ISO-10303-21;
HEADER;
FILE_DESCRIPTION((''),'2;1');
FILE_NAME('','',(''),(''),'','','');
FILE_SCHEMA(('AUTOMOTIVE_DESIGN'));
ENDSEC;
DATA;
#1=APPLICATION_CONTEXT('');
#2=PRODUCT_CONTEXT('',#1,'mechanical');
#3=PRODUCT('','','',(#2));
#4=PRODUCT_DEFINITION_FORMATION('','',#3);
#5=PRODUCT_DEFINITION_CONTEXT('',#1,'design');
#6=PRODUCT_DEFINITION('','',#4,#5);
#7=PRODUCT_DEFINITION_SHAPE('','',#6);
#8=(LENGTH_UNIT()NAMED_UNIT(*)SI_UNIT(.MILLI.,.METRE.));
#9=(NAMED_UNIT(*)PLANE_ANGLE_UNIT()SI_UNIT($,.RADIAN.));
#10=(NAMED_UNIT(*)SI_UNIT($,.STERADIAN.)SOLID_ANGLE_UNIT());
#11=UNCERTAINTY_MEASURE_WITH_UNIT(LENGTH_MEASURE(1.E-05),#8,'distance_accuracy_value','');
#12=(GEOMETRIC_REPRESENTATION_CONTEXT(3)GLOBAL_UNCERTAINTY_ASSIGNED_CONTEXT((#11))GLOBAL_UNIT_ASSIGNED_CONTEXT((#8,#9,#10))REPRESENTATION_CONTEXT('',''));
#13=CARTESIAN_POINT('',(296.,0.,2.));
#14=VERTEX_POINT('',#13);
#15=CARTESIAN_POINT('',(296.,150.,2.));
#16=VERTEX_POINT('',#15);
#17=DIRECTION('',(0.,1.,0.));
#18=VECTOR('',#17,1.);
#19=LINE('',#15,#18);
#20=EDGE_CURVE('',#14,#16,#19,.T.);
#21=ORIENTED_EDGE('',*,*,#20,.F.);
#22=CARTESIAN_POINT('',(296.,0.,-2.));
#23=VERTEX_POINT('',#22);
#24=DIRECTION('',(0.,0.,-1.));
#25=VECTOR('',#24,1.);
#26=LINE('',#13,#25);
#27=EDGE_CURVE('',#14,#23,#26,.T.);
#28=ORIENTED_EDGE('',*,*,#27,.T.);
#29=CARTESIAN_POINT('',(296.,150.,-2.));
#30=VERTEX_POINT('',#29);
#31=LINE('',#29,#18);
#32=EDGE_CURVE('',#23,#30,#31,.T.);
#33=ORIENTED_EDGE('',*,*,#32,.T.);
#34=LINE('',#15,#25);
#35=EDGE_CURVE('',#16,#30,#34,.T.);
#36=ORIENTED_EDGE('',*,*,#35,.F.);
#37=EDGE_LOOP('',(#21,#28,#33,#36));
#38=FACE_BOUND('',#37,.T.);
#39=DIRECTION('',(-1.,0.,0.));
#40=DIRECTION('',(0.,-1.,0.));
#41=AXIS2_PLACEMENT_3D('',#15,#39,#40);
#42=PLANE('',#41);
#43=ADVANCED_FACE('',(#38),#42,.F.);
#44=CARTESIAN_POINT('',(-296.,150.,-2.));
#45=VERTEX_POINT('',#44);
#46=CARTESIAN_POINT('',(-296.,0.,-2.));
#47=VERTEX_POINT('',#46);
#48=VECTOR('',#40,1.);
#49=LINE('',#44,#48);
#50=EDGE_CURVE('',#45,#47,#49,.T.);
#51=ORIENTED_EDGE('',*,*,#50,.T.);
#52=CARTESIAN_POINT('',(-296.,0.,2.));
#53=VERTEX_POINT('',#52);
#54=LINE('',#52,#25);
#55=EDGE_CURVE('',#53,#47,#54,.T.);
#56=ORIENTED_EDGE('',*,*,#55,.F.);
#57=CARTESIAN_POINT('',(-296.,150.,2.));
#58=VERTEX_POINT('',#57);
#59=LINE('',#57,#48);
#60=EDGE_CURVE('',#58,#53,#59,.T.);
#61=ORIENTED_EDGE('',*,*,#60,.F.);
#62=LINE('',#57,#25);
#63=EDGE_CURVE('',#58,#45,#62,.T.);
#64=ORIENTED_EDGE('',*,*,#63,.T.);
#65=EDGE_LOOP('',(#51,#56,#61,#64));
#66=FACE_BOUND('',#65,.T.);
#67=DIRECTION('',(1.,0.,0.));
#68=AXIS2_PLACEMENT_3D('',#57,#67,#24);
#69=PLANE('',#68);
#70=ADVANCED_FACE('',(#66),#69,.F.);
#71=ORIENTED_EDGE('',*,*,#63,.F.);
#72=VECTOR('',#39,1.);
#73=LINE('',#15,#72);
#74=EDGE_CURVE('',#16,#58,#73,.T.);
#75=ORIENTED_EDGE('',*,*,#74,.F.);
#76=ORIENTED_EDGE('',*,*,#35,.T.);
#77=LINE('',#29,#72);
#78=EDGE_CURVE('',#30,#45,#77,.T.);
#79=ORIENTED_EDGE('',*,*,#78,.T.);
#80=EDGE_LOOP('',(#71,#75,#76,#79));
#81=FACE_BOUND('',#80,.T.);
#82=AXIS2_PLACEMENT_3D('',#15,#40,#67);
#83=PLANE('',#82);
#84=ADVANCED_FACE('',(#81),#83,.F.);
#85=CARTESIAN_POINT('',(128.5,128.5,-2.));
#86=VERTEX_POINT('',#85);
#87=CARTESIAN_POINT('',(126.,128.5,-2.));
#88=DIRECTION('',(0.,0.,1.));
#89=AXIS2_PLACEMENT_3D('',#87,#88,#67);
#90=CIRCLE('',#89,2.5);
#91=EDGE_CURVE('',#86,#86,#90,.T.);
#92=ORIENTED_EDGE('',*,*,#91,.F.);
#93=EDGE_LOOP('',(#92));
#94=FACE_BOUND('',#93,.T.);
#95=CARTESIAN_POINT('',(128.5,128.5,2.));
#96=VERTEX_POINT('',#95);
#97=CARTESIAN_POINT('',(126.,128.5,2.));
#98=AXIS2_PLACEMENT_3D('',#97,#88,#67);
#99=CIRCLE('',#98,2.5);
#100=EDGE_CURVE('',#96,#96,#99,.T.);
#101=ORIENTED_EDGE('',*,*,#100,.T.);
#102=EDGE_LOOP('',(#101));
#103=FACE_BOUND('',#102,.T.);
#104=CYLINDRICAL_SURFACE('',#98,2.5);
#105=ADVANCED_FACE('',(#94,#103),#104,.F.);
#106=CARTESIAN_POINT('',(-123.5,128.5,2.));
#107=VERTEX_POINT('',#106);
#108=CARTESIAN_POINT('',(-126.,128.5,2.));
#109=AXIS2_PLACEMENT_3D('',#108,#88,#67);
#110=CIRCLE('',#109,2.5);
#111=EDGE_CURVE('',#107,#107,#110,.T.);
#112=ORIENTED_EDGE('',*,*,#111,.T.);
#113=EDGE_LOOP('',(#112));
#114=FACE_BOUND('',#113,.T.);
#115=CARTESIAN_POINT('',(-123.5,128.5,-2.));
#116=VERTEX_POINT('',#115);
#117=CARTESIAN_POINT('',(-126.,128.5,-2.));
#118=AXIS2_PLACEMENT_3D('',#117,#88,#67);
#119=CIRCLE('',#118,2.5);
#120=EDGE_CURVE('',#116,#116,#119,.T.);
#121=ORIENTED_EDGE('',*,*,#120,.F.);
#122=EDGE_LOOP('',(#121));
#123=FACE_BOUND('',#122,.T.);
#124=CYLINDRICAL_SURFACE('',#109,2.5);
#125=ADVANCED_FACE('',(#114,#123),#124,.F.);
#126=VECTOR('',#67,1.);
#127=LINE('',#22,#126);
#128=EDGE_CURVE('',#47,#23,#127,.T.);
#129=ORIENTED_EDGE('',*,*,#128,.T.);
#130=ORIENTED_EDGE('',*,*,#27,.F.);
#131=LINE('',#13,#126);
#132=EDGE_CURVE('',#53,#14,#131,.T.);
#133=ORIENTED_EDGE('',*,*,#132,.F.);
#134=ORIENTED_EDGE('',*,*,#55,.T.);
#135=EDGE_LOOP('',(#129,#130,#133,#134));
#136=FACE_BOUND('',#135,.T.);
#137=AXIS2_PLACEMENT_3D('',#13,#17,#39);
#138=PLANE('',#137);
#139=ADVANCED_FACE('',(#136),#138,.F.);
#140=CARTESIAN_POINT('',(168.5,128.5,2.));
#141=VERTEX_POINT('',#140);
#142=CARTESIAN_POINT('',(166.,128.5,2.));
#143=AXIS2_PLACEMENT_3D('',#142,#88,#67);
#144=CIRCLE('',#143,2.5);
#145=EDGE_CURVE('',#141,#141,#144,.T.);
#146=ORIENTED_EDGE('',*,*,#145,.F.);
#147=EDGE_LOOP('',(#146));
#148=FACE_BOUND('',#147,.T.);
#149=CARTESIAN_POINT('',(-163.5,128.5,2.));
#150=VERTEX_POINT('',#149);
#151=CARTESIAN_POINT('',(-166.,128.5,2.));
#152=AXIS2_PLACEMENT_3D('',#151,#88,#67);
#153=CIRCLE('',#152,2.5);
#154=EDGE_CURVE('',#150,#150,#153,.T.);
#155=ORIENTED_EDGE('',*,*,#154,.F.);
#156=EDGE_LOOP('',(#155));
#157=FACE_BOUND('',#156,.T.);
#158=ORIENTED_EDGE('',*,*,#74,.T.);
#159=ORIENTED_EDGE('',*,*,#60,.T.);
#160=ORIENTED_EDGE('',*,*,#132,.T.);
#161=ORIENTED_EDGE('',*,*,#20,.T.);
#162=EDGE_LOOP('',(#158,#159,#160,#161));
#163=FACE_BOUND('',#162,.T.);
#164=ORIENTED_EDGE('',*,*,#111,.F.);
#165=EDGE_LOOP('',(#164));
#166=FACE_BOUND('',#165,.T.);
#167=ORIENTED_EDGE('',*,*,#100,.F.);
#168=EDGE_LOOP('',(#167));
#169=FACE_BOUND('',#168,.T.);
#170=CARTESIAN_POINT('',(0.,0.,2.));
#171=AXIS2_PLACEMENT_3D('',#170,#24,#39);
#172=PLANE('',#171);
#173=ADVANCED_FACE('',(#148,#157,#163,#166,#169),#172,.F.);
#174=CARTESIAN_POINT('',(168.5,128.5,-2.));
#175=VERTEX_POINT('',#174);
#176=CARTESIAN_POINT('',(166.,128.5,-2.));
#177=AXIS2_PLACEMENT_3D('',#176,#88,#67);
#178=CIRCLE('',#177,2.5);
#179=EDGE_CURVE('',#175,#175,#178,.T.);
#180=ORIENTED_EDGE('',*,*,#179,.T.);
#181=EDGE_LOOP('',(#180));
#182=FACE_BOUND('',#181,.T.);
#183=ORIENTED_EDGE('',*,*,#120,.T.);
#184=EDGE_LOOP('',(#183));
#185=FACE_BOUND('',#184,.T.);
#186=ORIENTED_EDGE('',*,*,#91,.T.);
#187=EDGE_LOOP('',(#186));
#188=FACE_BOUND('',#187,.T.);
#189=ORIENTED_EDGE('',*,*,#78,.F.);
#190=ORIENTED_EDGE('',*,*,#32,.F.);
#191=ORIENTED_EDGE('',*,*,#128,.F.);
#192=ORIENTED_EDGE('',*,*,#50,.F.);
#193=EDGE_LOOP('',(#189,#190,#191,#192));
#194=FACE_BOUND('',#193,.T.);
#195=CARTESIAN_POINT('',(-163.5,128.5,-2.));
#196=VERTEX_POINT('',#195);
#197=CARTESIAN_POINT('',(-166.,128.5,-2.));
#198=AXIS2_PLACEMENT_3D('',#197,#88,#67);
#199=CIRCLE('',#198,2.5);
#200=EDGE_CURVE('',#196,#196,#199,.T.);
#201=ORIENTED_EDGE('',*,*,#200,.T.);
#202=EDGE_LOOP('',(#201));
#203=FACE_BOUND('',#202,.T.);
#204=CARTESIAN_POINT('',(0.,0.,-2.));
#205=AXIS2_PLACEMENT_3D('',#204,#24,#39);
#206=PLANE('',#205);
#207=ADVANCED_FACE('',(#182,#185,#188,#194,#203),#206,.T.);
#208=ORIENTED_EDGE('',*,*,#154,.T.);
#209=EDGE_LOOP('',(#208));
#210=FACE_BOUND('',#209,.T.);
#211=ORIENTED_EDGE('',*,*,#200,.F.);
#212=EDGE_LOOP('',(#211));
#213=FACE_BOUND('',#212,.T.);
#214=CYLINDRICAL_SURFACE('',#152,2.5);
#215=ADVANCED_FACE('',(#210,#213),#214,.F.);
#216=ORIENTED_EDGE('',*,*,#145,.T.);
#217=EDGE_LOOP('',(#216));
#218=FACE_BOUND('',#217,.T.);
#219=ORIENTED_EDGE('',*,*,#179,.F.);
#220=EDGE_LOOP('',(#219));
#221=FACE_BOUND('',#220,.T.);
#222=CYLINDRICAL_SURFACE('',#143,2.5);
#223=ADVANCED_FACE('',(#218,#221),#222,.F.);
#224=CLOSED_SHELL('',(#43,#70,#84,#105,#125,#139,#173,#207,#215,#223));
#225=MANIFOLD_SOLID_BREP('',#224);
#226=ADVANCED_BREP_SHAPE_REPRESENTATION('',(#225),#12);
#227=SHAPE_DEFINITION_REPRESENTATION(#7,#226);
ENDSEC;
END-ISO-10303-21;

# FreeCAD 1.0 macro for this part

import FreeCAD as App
import Part
import Sketcher
from FreeCAD import Vector
Q = App.Units.Quantity


def add_polygon(sketch, points):
    """Adds a closed chain of lines whose ends are joined by coincident constraints."""
    first, n = sketch.GeometryCount, len(points)
    for a, b in zip(points, points[1:] + points[:1]):
        sketch.addGeometry(Part.LineSegment(App.Vector(*a, 0), App.Vector(*b, 0)), False)
    for i in range(n):
        sketch.addConstraint(Sketcher.Constraint("Coincident", first + i, 2, first + (i + 1) % n, 1))

doc = App.newDocument("Part")
body = doc.addObject("PartDesign::Body", "Body")

# Sketch on XY plane
sketch1 = body.newObject("Sketcher::SketchObject", "Sketch")
sketch1.AttachmentSupport = (doc.getObject("XY_Plane"), [""])
sketch1.MapMode = "FlatFace"
add_polygon(sketch1, [(-296, 150), (-296, 0), (296, 0), (296, 150)])  # lines 0-3
sketch1.addConstraint([
    Sketcher.Constraint("Vertical", 0),
    Sketcher.Constraint("Horizontal", 1),
    Sketcher.Constraint("Vertical", 2),
    Sketcher.Constraint("Horizontal", 3),
    Sketcher.Constraint("Symmetric", 0, 2, 1, 2, -1, 1),
    Sketcher.Constraint("DistanceX", 1, 1, 1, 2, Q("592 mm")),
    Sketcher.Constraint("DistanceY", 0, 2, 0, 1, Q("150 mm")),
])
pad1 = body.newObject("PartDesign::Pad", "Pad")
pad1.Profile = sketch1
pad1.Length = 4
pad1.Midplane = True

# Sketch on XY plane
sketch2 = body.newObject("Sketcher::SketchObject", "Sketch001")
sketch2.AttachmentSupport = (doc.getObject("XY_Plane"), [""])
sketch2.MapMode = "FlatFace"
sketch2.AttachmentOffset = App.Placement(Vector(0, 0, 2), App.Rotation())
sketch2.addGeometry([
    Part.Circle(Vector(-166, 128.5, 0), Vector(0, 0, 1), 2.5),
    Part.Circle(Vector(-126, 128.5, 0), Vector(0, 0, 1), 2.5),
    Part.Circle(Vector(126, 128.5, 0), Vector(0, 0, 1), 2.5),
    Part.Circle(Vector(166, 128.5, 0), Vector(0, 0, 1), 2.5),
], False)
sketch2.addConstraint([
    Sketcher.Constraint("Equal", 0, 1),
    Sketcher.Constraint("Equal", 1, 2),
    Sketcher.Constraint("Equal", 2, 3),
    Sketcher.Constraint("Symmetric", 1, 3, 2, 3, -2),
    Sketcher.Constraint("Symmetric", 0, 3, 3, 3, -2),
    Sketcher.Constraint("Horizontal", 0, 3, 1, 3),
    Sketcher.Constraint("Diameter", 0, Q("5 mm")),
    Sketcher.Constraint("DistanceX", 0, 3, -1, 1, Q("166 mm")),
    Sketcher.Constraint("DistanceX", 1, 3, -1, 1, Q("126 mm")),
    Sketcher.Constraint("DistanceY", -1, 1, 0, 3, Q("128.5 mm")),
])
doc.recompute()
hole = body.newObject("PartDesign::Hole", "Hole")
hole.Profile = sketch2
hole.ThreadType = "None"
hole.Diameter = 5
hole.DepthType = "ThroughAll"

doc.recompute()
